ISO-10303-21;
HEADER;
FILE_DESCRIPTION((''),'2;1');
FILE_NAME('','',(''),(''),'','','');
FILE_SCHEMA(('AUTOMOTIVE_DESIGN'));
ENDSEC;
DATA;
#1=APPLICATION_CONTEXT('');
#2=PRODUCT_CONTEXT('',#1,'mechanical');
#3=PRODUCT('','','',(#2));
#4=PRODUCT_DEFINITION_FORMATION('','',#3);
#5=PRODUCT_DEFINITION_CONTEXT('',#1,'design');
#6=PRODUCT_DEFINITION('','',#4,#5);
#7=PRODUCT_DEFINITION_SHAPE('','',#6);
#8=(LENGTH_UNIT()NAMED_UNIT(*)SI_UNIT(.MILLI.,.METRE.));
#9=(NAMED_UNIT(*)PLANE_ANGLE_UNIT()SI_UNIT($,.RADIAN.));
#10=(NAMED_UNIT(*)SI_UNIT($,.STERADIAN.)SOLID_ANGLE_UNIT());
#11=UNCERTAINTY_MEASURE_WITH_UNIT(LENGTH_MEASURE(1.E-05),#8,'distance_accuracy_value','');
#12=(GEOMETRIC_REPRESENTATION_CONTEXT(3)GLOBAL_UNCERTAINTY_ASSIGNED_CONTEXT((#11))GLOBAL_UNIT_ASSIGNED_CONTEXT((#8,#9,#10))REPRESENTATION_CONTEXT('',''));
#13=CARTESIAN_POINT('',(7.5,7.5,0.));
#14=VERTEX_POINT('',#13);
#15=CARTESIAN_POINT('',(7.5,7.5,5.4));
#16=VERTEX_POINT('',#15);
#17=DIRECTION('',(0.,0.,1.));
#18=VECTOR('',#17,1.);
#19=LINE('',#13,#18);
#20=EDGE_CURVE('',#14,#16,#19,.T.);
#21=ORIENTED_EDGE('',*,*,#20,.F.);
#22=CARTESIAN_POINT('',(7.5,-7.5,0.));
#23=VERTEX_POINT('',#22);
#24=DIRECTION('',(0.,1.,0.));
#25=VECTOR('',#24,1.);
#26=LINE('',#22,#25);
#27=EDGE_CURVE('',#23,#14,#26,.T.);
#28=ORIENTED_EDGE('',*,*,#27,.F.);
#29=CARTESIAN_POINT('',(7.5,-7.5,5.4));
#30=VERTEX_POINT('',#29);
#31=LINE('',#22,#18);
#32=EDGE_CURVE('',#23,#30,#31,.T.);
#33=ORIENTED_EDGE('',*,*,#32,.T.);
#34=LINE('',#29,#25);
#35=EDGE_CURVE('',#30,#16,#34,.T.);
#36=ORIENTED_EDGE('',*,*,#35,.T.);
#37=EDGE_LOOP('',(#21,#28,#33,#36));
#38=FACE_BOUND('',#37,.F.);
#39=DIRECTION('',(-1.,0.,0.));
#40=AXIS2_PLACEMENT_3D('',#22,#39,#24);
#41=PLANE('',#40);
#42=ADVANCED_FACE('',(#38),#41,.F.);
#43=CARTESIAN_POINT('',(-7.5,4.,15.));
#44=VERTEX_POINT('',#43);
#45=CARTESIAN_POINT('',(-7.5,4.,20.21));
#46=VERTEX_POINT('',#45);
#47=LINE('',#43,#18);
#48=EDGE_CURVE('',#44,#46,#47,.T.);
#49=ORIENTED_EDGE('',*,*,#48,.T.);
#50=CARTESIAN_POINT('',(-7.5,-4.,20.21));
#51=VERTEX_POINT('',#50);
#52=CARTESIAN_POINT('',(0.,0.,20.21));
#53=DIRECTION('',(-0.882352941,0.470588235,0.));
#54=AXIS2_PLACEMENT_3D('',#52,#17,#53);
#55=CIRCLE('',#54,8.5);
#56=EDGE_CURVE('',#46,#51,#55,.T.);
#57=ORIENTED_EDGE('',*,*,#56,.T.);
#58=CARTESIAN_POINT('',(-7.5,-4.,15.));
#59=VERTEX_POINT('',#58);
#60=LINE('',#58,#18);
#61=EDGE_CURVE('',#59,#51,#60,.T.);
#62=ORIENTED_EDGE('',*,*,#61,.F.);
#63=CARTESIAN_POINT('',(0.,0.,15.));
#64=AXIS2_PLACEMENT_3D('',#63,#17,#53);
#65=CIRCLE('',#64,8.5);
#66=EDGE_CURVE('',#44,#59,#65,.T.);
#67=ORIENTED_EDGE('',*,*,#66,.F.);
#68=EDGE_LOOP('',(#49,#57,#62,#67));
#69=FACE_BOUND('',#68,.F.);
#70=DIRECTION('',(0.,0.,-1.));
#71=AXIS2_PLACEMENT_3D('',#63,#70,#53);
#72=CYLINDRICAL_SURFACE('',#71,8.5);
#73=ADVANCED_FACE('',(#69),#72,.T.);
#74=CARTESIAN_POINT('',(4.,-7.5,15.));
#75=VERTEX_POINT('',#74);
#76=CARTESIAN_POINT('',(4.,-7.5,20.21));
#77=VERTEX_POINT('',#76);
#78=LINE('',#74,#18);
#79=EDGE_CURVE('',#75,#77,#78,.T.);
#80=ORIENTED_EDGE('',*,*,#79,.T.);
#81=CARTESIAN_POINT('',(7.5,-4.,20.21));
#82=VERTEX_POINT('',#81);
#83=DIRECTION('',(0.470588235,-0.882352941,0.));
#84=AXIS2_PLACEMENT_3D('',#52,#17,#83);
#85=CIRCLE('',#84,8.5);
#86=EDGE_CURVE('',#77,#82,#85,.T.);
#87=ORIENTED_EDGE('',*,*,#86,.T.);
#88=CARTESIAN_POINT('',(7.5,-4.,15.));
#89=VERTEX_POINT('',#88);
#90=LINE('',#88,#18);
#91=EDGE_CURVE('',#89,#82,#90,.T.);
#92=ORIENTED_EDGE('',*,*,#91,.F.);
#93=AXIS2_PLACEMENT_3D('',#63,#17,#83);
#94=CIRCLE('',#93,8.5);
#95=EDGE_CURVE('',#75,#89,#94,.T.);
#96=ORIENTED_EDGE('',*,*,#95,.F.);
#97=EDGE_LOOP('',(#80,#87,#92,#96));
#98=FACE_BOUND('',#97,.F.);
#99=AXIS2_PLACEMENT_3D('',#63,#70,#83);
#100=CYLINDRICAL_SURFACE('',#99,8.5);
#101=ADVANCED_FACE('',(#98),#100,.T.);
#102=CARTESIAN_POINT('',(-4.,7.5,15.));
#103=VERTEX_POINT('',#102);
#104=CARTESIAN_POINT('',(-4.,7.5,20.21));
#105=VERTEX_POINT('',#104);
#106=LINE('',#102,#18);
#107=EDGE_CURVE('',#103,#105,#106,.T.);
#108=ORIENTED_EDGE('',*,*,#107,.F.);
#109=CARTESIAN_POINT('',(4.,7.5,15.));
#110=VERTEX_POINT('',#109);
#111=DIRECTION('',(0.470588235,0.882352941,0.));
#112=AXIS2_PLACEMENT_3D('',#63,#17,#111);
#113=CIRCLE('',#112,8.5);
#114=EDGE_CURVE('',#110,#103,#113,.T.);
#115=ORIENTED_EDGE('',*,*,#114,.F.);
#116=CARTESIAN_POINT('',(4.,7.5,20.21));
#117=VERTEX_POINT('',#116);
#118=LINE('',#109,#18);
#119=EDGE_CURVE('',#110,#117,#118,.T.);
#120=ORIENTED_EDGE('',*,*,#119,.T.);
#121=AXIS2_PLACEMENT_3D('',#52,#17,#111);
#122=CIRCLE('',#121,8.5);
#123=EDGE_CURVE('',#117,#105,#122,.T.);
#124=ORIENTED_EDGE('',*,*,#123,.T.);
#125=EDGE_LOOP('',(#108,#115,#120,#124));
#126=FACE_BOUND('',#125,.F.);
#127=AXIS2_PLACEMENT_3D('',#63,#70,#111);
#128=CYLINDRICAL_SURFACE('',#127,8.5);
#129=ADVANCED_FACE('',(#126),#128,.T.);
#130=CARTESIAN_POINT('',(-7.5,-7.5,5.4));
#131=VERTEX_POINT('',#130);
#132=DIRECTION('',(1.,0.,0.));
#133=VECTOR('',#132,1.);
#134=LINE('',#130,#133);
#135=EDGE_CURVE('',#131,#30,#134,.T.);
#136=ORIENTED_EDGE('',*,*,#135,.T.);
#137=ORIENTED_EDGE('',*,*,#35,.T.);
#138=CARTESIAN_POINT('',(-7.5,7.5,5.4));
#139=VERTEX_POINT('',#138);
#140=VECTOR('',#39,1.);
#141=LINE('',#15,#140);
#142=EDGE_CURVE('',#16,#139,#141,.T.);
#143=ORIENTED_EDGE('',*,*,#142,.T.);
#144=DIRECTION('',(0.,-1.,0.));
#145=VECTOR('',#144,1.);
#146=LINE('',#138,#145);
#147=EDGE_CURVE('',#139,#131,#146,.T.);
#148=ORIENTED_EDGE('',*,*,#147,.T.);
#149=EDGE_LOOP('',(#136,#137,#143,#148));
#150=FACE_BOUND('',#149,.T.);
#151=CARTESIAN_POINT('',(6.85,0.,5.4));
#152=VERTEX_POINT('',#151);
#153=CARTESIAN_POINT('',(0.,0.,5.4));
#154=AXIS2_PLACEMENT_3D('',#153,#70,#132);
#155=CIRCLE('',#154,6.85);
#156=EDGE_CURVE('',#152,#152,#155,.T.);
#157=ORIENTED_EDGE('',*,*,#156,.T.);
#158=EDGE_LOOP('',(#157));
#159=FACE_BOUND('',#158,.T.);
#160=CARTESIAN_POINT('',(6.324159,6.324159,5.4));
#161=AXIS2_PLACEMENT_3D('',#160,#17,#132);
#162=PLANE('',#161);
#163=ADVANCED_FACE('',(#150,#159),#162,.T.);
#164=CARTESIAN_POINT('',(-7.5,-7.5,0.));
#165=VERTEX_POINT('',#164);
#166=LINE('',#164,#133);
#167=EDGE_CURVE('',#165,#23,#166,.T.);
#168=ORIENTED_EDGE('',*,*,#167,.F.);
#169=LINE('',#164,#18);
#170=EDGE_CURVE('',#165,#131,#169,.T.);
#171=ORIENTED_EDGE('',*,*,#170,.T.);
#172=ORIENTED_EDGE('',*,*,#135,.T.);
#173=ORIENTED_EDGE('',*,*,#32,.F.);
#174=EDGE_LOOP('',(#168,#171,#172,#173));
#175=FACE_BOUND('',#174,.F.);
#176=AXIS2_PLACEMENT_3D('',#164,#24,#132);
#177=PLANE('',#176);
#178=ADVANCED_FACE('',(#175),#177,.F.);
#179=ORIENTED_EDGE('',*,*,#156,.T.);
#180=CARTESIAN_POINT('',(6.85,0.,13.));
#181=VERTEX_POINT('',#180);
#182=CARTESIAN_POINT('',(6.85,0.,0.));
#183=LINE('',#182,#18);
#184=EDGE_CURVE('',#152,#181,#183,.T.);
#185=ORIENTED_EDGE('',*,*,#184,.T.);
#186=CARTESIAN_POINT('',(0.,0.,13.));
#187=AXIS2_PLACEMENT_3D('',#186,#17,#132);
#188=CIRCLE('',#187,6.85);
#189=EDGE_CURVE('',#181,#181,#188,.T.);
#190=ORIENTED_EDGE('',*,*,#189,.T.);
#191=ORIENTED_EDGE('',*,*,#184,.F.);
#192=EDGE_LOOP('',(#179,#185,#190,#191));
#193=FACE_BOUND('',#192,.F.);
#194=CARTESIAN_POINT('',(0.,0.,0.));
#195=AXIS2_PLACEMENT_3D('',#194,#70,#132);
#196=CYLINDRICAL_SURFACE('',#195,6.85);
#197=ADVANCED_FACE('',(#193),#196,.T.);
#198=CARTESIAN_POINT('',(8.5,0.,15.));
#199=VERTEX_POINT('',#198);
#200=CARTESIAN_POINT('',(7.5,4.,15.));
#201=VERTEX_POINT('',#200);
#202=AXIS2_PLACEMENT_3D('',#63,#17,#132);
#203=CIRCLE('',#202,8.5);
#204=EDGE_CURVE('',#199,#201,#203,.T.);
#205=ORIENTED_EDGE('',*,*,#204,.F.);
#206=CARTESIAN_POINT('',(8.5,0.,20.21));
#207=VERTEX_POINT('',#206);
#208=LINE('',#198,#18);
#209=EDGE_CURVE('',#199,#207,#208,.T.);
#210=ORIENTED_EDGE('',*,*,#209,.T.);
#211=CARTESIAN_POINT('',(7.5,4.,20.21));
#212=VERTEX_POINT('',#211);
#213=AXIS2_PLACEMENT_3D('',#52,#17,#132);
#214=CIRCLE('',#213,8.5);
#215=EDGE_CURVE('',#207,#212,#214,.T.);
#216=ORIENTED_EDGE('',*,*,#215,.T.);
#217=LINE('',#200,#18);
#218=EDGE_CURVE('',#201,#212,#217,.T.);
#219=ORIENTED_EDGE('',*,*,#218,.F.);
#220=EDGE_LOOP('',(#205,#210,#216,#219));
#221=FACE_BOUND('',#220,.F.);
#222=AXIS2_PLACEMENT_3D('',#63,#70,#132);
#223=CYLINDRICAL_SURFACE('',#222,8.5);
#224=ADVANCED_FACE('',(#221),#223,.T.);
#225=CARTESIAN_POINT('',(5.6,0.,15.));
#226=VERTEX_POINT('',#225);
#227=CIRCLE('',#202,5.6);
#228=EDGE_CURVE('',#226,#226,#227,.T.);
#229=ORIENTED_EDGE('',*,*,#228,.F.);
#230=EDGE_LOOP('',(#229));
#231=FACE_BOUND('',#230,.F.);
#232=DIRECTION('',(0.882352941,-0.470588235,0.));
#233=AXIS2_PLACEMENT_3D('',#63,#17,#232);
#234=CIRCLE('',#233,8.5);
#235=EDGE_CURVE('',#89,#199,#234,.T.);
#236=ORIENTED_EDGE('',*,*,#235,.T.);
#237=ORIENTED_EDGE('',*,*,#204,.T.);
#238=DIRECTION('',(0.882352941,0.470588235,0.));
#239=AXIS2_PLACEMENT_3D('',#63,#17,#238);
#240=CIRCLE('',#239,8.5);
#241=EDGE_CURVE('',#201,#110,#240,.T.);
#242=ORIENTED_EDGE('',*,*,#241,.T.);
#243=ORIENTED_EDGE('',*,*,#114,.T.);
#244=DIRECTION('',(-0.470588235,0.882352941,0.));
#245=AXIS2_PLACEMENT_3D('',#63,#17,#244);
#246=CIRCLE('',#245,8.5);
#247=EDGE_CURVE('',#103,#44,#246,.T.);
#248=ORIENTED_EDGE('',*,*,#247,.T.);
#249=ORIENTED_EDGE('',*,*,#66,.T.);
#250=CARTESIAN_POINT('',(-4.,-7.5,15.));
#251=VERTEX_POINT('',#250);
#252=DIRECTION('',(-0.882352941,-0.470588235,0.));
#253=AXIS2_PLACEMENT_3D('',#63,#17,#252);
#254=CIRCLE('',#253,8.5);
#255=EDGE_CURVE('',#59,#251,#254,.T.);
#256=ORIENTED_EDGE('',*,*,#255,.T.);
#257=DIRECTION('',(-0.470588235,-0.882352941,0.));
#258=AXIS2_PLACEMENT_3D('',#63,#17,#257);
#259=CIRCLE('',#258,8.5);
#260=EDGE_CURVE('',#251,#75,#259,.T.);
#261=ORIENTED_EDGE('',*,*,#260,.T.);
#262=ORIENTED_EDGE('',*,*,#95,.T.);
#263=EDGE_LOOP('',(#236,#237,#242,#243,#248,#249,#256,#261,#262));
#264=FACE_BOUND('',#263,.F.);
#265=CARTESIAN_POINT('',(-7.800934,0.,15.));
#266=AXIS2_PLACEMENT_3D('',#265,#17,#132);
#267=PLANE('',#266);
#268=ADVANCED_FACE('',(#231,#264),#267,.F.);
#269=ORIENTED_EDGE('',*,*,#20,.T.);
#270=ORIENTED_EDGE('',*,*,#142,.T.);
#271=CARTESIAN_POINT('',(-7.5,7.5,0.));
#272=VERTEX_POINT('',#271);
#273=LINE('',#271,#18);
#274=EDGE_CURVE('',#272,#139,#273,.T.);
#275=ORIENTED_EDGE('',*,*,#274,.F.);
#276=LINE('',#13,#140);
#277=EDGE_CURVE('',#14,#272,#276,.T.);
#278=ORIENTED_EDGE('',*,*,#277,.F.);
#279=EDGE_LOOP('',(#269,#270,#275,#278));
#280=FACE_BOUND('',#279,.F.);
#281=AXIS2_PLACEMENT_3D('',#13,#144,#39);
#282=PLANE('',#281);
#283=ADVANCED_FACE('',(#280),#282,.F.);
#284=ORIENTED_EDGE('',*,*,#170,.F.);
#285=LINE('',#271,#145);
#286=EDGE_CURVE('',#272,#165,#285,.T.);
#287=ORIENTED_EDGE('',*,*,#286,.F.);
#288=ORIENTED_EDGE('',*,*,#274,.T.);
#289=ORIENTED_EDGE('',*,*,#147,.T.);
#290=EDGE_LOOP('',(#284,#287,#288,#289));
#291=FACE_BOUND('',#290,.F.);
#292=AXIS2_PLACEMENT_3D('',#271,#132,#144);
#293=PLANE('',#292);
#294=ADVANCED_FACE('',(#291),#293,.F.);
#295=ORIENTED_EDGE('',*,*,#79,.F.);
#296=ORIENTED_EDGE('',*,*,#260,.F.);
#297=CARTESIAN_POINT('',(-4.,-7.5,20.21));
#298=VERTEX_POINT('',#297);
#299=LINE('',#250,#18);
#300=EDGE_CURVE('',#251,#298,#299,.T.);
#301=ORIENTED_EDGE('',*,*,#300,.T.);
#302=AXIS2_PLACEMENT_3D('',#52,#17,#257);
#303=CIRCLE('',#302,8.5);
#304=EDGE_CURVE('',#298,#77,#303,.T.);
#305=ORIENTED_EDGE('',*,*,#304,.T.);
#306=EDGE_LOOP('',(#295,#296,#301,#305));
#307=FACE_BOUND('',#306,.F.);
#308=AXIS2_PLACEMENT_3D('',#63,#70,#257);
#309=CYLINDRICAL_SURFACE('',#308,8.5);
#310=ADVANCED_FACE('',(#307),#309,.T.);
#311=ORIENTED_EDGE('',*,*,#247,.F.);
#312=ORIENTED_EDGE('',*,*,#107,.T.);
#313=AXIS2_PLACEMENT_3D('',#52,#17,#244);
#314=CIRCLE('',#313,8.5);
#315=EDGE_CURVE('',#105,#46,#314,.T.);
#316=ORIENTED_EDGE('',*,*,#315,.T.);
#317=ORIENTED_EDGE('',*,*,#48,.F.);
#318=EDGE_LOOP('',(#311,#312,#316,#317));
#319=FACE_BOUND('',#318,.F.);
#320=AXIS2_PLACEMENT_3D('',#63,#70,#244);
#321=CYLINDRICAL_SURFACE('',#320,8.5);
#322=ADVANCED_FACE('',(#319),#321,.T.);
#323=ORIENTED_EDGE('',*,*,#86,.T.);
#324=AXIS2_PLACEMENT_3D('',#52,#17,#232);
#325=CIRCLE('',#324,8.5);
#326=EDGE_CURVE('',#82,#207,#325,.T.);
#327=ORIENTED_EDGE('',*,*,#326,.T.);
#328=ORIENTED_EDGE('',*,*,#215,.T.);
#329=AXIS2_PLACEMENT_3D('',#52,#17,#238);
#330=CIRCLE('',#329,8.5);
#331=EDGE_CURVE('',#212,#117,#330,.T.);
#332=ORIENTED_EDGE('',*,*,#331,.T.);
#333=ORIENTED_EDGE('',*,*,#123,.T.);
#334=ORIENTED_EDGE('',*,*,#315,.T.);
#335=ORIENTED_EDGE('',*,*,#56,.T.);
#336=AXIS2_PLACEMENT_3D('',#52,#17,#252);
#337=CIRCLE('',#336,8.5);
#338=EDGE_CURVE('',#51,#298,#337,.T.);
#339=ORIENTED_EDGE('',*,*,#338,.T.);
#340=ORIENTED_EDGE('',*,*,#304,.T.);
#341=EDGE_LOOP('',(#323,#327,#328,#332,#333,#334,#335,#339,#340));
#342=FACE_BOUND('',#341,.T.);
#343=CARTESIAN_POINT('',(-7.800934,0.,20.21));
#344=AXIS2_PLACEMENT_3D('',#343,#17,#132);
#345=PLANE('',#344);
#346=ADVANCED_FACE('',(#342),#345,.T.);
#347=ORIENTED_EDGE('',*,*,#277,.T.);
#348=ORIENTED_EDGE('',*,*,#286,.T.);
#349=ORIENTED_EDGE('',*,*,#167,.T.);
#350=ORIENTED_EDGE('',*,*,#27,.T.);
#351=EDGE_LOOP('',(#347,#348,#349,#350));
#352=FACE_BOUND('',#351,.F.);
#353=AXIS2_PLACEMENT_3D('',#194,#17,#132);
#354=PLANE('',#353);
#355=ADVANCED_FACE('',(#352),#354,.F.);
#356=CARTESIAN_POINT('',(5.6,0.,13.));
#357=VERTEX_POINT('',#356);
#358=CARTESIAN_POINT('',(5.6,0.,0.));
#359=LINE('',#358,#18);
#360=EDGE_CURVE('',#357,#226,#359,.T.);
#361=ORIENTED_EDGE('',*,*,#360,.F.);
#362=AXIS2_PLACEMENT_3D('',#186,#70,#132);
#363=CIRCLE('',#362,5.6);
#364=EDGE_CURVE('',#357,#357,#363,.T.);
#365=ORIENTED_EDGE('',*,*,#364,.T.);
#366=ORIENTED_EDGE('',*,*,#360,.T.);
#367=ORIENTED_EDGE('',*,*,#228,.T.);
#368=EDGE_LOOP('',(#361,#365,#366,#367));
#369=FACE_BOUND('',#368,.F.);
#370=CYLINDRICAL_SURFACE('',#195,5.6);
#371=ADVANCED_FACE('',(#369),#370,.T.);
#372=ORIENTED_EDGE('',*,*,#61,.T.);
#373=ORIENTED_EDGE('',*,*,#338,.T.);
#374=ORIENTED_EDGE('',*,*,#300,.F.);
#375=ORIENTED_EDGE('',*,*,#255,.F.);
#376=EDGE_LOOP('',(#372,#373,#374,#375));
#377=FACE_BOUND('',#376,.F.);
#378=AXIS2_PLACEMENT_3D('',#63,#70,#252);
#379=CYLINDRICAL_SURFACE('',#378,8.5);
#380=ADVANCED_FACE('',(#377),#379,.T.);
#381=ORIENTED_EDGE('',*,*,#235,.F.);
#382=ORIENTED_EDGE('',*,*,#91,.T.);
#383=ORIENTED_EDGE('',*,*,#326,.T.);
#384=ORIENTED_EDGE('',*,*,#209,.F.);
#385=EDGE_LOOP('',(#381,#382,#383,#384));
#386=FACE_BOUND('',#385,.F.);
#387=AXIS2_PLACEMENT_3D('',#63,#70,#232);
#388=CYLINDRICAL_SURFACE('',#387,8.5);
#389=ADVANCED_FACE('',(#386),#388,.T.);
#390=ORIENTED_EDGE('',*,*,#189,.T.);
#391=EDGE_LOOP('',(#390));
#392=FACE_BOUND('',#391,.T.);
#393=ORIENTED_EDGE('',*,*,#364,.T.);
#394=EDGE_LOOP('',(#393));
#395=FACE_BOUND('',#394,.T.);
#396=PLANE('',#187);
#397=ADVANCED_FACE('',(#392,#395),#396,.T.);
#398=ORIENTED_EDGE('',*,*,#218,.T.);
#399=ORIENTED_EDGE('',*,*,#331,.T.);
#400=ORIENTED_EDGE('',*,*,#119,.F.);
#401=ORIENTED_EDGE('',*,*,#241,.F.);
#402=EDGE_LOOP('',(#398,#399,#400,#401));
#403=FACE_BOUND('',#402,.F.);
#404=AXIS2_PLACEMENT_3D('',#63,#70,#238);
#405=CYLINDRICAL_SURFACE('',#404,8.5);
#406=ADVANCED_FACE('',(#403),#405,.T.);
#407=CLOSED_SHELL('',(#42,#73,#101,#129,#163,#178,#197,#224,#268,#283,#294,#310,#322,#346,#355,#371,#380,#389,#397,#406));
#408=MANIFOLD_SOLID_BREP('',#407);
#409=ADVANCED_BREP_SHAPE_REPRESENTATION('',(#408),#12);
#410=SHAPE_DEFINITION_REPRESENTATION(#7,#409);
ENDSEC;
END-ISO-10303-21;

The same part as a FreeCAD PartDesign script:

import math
import FreeCAD as App
import Part
import Sketcher
from FreeCAD import Vector
Q = App.Units.Quantity


def add_polygon(sketch, points):
    """Adds a closed chain of lines whose ends are joined by coincident constraints."""
    first, n = sketch.GeometryCount, len(points)
    for a, b in zip(points, points[1:] + points[:1]):
        sketch.addGeometry(Part.LineSegment(App.Vector(*a, 0), App.Vector(*b, 0)), False)
    for i in range(n):
        sketch.addConstraint(Sketcher.Constraint("Coincident", first + i, 2, first + (i + 1) % n, 1))

doc = App.newDocument("Part")
body = doc.addObject("PartDesign::Body", "Body")

sketch1 = body.newObject("Sketcher::SketchObject", "Sketch")
sketch1.AttachmentSupport = (doc.getObject("XY_Plane"), [""])
sketch1.MapMode = "FlatFace"
add_polygon(sketch1, [(8, 8), (-8, 8), (-8, -8), (8, -8)])
sketch1.addConstraint(Sketcher.Constraint("Horizontal", 0))
sketch1.addConstraint(Sketcher.Constraint("Vertical", 1))
sketch1.addConstraint(Sketcher.Constraint("Horizontal", 2))
sketch1.addConstraint(Sketcher.Constraint("Vertical", 3))
sketch1.addConstraint(Sketcher.Constraint("Symmetric", 0, 2, 2, 2, -1, 1))
sketch1.addConstraint(Sketcher.Constraint("Equal", 2, 1))
sketch1.addConstraint(Sketcher.Constraint("DistanceX", 0, 2, 0, 1, Q("15 mm")))
pad1 = body.newObject("PartDesign::Pad", "Pad")
pad1.Profile = sketch1
pad1.Length = 5.4

sketch2 = body.newObject("Sketcher::SketchObject", "Sketch001")
sketch2.AttachmentSupport = (doc.getObject("XY_Plane"), [""])
sketch2.MapMode = "FlatFace"
sketch2.addGeometry(Part.Circle(Vector(0, 0, 0), Vector(0, 0, 1), 7), False)
sketch2.addConstraint(Sketcher.Constraint("Coincident", 0, 3, -1, 1))
sketch2.addConstraint(Sketcher.Constraint("Diameter", 0, Q("13.7 mm")))
pad2 = body.newObject("PartDesign::Pad", "Pad001")
pad2.Profile = sketch2
pad2.Length = 13

sketch3 = body.newObject("Sketcher::SketchObject", "Sketch002")
sketch3.AttachmentSupport = (doc.getObject("XY_Plane"), [""])
sketch3.MapMode = "FlatFace"
sketch3.addGeometry(Part.Circle(Vector(0, 0, 0), Vector(0, 0, 1), 6), False)
sketch3.addConstraint(Sketcher.Constraint("Coincident", 0, 3, -1, 1))
sketch3.addConstraint(Sketcher.Constraint("Diameter", 0, Q("11.2 mm")))
pad3 = body.newObject("PartDesign::Pad", "Pad002")
pad3.Profile = sketch3
pad3.Length = 15

sketch4 = body.newObject("Sketcher::SketchObject", "Sketch003")
sketch4.AttachmentSupport = (doc.getObject("XY_Plane"), [""])
sketch4.MapMode = "FlatFace"
sketch4.AttachmentOffset = App.Placement(Vector(0, 0, 15), App.Rotation())
sketch4.addGeometry(Part.ArcOfCircle(Part.Circle(Vector(0, 0, 0), Vector(0, 0, 1), 8.5), math.radians(152), math.radians(208)), False)
sketch4.addGeometry(Part.ArcOfCircle(Part.Circle(Vector(0, 0, 0), Vector(0, 0, 1), 8.5), math.radians(-152), math.radians(-118)), False)
sketch4.addGeometry(Part.ArcOfCircle(Part.Circle(Vector(0, 0, 0), Vector(0, 0, 1), 8.5), math.radians(-118), math.radians(-62)), False)
sketch4.addGeometry(Part.ArcOfCircle(Part.Circle(Vector(0, 0, 0), Vector(0, 0, 1), 8.5), math.radians(-62), math.radians(-28)), False)
sketch4.addGeometry(Part.ArcOfCircle(Part.Circle(Vector(0, 0, 0), Vector(0, 0, 1), 8.5), math.radians(-28), math.radians(0)), False)
sketch4.addGeometry(Part.ArcOfCircle(Part.Circle(Vector(0, 0, 0), Vector(0, 0, 1), 8.5), math.radians(0), math.radians(28)), False)
sketch4.addGeometry(Part.ArcOfCircle(Part.Circle(Vector(0, 0, 0), Vector(0, 0, 1), 8.5), math.radians(28), math.radians(62)), False)
sketch4.addGeometry(Part.ArcOfCircle(Part.Circle(Vector(0, 0, 0), Vector(0, 0, 1), 8.5), math.radians(62), math.radians(118)), False)
sketch4.addGeometry(Part.ArcOfCircle(Part.Circle(Vector(0, 0, 0), Vector(0, 0, 1), 8.5), math.radians(118), math.radians(152)), False)
sketch4.addConstraint(Sketcher.Constraint("Tangent", 0, 2, 1, 1))
sketch4.addConstraint(Sketcher.Constraint("Tangent", 1, 2, 2, 1))
sketch4.addConstraint(Sketcher.Constraint("Tangent", 2, 2, 3, 1))
sketch4.addConstraint(Sketcher.Constraint("Tangent", 3, 2, 4, 1))
sketch4.addConstraint(Sketcher.Constraint("Tangent", 4, 2, 5, 1))
sketch4.addConstraint(Sketcher.Constraint("Tangent", 5, 2, 6, 1))
sketch4.addConstraint(Sketcher.Constraint("Tangent", 6, 2, 7, 1))
sketch4.addConstraint(Sketcher.Constraint("Tangent", 7, 2, 8, 1))
sketch4.addConstraint(Sketcher.Constraint("Tangent", 8, 2, 0, 1))
sketch4.addConstraint(Sketcher.Constraint("Coincident", 0, 3, -1, 1))
sketch4.addConstraint(Sketcher.Constraint("Coincident", 2, 3, -1, 1))
sketch4.addConstraint(Sketcher.Constraint("Coincident", 4, 3, -1, 1))
sketch4.addConstraint(Sketcher.Constraint("Coincident", 6, 3, -1, 1))
sketch4.addConstraint(Sketcher.Constraint("PointOnObject", 4, 2, -1))
sketch4.addConstraint(Sketcher.Constraint("Horizontal", 1, 2, 2, 2))
sketch4.addConstraint(Sketcher.Constraint("Horizontal", 0, 2, 3, 2))
sketch4.addConstraint(Sketcher.Constraint("Horizontal", 6, 2, 7, 2))
sketch4.addConstraint(Sketcher.Constraint("Horizontal", 5, 2, 8, 2))
sketch4.addConstraint(Sketcher.Constraint("Vertical", 3, 2, 5, 2))
sketch4.addConstraint(Sketcher.Constraint("Vertical", 2, 2, 6, 2))
sketch4.addConstraint(Sketcher.Constraint("Radius", 0, Q("8.5 mm")))
sketch4.addConstraint(Sketcher.Constraint("DistanceY", 0, 2, -1, 1, Q("4 mm")))
sketch4.addConstraint(Sketcher.Constraint("DistanceX", 1, 2, -1, 1, Q("4 mm")))
pad4 = body.newObject("PartDesign::Pad", "Pad003")
pad4.Profile = sketch4
pad4.Length = 5.21

doc.recompute()
